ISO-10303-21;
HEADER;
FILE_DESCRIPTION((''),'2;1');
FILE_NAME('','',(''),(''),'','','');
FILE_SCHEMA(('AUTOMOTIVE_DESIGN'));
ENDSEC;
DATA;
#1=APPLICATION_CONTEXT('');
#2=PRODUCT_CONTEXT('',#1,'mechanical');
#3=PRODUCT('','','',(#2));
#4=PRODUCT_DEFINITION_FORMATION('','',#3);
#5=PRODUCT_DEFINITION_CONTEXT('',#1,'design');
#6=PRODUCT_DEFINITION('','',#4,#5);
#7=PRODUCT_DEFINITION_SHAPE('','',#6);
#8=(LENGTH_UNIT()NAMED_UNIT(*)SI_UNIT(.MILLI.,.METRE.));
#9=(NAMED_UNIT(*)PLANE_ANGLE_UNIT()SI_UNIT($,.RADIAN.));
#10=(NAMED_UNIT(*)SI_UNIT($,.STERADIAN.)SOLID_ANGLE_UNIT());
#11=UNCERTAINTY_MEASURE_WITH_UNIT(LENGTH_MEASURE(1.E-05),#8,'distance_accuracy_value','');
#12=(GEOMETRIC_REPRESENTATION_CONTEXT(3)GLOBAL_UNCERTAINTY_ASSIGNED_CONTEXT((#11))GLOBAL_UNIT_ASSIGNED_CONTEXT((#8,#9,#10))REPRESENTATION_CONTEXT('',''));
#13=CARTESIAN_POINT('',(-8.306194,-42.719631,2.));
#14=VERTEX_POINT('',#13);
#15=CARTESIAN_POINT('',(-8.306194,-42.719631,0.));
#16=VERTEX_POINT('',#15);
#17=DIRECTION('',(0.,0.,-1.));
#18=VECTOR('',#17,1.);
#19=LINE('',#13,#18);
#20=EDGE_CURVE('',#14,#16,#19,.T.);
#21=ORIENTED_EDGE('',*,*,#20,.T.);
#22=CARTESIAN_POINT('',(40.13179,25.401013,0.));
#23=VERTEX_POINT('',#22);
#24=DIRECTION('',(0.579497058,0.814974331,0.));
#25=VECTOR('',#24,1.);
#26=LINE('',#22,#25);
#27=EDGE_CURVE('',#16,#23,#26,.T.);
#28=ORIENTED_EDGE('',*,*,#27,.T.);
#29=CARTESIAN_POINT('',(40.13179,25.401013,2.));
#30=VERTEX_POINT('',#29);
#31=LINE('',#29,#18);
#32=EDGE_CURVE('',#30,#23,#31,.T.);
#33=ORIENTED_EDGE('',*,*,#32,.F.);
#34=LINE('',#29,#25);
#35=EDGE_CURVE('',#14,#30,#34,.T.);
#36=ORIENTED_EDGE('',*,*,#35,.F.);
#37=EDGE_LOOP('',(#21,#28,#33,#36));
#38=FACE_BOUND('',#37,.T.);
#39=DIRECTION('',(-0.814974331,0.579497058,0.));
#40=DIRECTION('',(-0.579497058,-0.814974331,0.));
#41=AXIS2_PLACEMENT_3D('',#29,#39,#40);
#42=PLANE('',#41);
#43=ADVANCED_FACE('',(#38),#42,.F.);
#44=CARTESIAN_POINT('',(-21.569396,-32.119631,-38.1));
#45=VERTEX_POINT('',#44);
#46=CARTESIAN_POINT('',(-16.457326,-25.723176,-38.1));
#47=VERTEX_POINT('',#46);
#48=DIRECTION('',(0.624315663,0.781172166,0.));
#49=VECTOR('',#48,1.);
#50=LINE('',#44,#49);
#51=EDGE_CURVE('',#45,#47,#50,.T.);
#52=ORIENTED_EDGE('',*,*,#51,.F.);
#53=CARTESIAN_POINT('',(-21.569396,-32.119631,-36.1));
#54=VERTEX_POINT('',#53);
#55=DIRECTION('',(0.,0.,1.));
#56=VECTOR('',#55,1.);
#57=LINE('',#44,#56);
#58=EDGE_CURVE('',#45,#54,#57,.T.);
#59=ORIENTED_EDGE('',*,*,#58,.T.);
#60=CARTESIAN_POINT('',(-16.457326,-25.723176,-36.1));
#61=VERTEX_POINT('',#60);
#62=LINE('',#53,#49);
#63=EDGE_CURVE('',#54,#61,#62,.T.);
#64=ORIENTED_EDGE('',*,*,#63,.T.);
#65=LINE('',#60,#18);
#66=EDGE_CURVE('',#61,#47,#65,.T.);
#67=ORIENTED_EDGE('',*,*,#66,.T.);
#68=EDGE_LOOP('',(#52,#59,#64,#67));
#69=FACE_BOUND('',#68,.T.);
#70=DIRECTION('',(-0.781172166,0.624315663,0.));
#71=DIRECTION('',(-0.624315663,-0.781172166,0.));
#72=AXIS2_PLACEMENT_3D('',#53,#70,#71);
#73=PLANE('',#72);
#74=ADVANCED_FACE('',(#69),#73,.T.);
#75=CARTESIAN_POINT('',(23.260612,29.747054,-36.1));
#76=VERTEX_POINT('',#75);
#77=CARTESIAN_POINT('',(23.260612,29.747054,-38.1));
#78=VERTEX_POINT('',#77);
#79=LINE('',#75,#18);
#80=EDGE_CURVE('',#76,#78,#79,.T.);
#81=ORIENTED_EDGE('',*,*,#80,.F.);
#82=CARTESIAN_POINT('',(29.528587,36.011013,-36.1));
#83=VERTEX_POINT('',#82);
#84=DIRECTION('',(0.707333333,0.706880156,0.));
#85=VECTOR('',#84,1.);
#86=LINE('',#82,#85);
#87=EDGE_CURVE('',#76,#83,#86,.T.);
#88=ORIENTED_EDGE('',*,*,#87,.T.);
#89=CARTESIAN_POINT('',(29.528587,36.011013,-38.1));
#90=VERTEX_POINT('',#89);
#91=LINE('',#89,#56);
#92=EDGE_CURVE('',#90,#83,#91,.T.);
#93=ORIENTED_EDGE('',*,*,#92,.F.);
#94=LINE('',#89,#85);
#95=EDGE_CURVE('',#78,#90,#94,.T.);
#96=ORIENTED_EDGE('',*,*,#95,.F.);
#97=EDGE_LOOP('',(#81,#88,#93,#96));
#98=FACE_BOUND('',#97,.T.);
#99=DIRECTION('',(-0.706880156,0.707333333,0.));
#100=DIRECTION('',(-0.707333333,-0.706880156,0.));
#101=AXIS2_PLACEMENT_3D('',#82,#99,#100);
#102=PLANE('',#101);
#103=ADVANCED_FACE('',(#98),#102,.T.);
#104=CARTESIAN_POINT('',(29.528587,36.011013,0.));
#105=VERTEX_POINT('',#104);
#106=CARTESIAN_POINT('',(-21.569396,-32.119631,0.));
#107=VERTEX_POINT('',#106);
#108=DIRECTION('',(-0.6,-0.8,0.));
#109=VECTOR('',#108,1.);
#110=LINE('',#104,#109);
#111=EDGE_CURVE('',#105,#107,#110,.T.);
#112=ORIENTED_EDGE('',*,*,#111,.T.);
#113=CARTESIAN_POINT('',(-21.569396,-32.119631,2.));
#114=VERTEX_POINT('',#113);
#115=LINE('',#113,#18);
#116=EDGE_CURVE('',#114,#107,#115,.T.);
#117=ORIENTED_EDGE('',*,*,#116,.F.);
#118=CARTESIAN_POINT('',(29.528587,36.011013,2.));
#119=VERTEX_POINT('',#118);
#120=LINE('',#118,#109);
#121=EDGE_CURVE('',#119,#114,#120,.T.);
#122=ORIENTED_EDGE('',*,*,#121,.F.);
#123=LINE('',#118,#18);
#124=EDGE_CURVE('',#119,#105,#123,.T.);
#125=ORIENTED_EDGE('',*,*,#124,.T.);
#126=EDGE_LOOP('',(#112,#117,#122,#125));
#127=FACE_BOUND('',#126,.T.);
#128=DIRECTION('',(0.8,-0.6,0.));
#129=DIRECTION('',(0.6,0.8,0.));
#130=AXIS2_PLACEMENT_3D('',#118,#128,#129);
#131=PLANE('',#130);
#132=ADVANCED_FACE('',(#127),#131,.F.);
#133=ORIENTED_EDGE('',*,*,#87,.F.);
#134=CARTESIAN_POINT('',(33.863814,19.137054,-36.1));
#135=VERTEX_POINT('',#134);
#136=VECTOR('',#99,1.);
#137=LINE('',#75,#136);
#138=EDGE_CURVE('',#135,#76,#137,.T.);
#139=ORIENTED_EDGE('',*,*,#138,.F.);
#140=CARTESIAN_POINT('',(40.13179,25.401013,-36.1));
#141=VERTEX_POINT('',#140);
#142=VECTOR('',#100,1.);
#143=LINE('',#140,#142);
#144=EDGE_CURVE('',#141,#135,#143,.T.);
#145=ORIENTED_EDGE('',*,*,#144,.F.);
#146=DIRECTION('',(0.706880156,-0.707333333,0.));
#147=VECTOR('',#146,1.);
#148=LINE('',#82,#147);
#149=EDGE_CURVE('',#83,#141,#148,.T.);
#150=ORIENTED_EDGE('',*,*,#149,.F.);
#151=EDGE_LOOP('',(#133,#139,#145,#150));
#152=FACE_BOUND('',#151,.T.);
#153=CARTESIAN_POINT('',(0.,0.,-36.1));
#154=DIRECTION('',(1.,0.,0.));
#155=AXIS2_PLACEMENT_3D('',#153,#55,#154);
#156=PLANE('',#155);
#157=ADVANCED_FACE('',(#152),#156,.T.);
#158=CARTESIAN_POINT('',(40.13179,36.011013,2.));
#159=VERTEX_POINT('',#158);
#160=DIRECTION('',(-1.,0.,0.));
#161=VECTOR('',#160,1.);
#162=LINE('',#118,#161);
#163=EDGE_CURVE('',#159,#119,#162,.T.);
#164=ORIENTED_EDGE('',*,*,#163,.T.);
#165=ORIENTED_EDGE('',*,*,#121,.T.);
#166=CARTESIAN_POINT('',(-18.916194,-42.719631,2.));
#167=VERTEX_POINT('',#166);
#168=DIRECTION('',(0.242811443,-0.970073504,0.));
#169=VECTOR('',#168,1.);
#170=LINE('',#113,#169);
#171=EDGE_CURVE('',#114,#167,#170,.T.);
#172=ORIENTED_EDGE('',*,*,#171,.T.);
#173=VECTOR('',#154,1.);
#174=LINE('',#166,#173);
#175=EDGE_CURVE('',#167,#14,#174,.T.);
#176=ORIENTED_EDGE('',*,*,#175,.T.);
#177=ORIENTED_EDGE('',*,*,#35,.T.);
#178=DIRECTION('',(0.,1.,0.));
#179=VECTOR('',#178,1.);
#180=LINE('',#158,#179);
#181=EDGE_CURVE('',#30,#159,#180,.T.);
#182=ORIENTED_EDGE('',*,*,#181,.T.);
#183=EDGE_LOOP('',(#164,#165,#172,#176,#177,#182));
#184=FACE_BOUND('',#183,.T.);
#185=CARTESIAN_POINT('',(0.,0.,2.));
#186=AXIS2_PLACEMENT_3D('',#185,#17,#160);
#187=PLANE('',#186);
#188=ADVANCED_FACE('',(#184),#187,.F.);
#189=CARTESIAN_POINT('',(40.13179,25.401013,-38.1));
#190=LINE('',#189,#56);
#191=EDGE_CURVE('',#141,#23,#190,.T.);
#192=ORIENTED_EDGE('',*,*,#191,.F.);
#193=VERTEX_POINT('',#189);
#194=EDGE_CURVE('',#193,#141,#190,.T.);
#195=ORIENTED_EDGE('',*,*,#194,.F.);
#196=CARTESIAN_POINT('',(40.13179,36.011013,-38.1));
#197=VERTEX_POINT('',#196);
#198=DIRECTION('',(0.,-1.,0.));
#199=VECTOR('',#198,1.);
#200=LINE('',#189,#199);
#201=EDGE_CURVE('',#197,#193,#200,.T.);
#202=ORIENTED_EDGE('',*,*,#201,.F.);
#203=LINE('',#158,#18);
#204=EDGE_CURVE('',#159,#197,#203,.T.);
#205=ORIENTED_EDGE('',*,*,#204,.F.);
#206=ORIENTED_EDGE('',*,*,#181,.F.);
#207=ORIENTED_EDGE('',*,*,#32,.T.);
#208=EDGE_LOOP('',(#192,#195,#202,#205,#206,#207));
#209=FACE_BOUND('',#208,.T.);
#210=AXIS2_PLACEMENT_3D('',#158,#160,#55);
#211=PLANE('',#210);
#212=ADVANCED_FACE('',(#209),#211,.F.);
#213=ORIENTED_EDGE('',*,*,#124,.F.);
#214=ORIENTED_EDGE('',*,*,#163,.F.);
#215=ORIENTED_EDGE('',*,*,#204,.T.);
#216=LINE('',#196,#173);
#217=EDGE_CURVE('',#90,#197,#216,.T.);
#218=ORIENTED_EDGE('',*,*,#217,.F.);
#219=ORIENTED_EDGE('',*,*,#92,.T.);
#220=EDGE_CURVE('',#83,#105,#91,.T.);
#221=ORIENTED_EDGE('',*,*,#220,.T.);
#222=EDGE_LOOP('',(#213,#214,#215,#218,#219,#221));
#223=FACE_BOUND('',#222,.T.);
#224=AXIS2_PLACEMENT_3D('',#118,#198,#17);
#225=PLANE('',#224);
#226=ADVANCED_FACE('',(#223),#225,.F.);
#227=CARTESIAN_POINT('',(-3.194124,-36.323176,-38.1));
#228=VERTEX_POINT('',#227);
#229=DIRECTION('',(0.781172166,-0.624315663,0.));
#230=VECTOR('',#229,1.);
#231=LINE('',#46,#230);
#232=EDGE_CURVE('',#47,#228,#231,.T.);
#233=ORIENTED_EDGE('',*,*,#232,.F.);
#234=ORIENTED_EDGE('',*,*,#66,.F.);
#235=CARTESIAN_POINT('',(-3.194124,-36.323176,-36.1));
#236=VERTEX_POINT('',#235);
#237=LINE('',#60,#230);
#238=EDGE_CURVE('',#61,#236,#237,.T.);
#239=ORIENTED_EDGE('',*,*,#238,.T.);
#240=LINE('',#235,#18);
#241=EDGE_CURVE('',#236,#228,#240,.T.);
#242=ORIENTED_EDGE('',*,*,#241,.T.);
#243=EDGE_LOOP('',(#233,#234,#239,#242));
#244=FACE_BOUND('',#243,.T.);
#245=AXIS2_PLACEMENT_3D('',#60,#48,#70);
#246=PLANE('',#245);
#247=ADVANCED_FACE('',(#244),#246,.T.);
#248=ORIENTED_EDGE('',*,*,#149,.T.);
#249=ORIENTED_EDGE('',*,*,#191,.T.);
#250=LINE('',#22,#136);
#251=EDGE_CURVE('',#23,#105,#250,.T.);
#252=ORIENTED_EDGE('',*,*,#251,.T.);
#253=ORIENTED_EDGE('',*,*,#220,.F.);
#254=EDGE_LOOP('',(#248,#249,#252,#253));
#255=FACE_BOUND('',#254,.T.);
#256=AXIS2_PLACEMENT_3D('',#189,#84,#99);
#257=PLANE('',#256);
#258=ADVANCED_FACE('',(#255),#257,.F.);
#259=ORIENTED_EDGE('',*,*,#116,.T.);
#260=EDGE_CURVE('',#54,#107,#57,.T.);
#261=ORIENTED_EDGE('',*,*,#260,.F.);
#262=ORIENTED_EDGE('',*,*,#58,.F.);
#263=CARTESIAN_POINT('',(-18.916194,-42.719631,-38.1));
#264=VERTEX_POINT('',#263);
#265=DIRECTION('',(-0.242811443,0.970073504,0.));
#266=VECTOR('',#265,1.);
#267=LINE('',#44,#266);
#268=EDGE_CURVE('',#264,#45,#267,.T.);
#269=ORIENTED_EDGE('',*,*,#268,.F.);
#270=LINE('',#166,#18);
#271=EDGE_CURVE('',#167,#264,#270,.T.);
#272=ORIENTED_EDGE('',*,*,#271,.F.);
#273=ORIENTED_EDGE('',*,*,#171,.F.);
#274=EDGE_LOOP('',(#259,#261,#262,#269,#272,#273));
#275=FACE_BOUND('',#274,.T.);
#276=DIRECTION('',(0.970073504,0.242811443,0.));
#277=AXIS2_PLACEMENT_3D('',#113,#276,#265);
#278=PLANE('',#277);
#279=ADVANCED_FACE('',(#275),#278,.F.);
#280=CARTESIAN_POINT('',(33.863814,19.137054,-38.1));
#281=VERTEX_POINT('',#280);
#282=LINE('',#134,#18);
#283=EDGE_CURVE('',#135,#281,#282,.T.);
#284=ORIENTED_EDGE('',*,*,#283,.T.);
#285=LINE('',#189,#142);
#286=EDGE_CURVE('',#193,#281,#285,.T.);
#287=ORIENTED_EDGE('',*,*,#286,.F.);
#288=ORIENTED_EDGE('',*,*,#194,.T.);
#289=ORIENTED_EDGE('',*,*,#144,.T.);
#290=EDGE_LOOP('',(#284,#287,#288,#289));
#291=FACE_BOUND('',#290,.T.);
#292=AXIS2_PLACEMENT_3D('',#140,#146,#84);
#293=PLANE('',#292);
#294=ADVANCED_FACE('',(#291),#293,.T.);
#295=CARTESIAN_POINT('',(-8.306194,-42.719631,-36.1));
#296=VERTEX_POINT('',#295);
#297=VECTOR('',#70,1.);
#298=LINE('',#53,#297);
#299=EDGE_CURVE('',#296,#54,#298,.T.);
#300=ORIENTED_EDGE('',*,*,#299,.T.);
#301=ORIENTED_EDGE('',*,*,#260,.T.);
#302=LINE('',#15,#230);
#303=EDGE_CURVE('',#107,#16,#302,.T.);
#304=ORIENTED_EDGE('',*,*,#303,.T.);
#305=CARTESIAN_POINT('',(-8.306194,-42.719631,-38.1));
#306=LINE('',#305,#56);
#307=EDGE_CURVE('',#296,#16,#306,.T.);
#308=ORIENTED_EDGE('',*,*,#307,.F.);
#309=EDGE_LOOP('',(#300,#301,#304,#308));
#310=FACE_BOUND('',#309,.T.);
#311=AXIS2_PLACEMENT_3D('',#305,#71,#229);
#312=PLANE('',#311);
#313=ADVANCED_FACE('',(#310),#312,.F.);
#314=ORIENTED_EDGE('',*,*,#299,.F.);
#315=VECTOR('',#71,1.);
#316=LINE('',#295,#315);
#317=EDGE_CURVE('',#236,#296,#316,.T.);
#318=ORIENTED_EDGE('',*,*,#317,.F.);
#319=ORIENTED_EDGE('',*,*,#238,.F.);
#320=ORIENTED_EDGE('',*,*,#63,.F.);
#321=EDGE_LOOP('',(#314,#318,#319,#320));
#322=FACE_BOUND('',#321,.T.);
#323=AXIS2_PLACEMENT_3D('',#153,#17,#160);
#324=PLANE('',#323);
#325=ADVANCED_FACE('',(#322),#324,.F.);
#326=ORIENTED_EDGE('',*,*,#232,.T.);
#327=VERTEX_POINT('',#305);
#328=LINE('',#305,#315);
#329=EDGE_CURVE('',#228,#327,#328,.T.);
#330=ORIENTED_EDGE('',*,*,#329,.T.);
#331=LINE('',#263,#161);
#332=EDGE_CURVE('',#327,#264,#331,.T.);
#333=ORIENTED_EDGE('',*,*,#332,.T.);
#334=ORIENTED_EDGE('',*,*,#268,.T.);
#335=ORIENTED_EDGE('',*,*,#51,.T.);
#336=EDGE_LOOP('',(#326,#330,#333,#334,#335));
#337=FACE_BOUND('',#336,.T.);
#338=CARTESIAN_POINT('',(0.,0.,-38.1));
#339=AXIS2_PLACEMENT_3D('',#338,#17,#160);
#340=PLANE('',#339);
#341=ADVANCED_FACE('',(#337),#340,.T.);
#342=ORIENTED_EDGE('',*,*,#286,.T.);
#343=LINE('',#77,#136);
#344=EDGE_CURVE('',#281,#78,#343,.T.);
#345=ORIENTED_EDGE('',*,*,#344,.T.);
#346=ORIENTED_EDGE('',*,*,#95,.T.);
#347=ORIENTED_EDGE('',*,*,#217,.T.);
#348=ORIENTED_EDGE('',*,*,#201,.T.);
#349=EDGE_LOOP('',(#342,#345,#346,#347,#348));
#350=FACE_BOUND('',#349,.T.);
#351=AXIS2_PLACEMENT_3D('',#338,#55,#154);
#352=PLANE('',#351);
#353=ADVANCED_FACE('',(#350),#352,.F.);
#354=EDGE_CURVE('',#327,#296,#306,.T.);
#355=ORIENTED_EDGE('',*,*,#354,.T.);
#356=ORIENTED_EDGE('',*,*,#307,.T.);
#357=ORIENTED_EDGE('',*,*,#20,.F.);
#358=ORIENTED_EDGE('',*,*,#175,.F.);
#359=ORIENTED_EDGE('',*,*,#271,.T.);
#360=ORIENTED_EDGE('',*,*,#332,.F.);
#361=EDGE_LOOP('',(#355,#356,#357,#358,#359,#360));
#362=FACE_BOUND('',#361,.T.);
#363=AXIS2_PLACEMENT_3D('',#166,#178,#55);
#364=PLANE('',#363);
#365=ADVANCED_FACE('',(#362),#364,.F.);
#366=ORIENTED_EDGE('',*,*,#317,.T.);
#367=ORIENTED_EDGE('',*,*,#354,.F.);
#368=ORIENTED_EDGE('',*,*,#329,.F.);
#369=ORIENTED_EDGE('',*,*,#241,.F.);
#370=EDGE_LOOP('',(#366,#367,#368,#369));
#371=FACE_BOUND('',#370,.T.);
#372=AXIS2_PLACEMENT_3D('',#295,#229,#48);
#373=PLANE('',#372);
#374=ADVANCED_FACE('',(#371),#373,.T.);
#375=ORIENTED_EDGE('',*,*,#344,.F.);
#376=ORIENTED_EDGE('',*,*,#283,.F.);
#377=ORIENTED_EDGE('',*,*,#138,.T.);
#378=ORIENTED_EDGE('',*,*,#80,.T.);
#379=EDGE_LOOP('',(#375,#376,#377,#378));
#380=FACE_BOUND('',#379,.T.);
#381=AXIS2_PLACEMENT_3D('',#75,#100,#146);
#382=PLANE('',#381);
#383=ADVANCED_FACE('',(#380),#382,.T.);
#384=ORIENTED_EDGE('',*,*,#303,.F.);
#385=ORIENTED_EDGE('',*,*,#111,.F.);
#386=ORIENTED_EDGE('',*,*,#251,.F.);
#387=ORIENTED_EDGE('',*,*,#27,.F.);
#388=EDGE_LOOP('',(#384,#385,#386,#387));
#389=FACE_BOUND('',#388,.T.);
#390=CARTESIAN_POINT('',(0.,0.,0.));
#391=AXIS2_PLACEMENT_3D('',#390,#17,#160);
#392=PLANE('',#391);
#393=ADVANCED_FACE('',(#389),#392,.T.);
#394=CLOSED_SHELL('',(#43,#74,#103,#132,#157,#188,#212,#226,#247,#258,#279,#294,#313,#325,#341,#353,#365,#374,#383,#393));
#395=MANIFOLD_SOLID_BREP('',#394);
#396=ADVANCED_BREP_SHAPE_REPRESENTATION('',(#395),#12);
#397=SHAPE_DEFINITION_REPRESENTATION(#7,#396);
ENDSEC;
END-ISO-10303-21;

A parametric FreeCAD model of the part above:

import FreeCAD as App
import Part
import Sketcher
Q = App.Units.Quantity


def add_polygon(sketch, points):
    """Adds a closed chain of lines whose ends are joined by coincident constraints."""
    first, n = sketch.GeometryCount, len(points)
    for a, b in zip(points, points[1:] + points[:1]):
        sketch.addGeometry(Part.LineSegment(App.Vector(*a, 0), App.Vector(*b, 0)), False)
    for i in range(n):
        sketch.addConstraint(Sketcher.Constraint("Coincident", first + i, 2, first + (i + 1) % n, 1))

doc = App.newDocument("Part")
params = doc.addObject("Spreadsheet::Sheet", "Params")
for row, (alias, value) in enumerate([
    ("sketch1_width", "10.61 mm"),
    ("pad1_length", "2 mm"),
    ("sketch2_length", "15 mm"),
    ("sketch2_width", "10.61 mm"),
    ("pad2_length", "38.1 mm"),
    ("sketch3_length", "15 mm"),
    ("pad3_length", "2 mm"),
], start=1):
    params.set(f"A{row}", alias)
    params.set(f"B{row}", "=" + value)
    params.setAlias(f"B{row}", alias)

body = doc.addObject("PartDesign::Body", "Body")

# Sketch on XY plane
sketch1 = body.newObject("Sketcher::SketchObject", "Sketch")
sketch1.AttachmentSupport = (doc.getObject("XY_Plane"), [""])
sketch1.MapMode = "FlatFace"
add_polygon(sketch1, [(29.528587, 36.011013), (-21.569396, -32.119631), (-18.916194, -42.719631), (-8.306194, -42.719631), (40.13179, 25.401013), (40.13179, 36.011013)])  # lines 0-5
sketch1.addConstraint([
    Sketcher.Constraint("Horizontal", 2),
    Sketcher.Constraint("Vertical", 4),
    Sketcher.Constraint("Horizontal", 5),
    Sketcher.Constraint("Equal", 2, 4),
    Sketcher.Constraint("DistanceX", 2, 1, 2, 2, Q("10.61 mm")),
    Sketcher.Constraint("DistanceY", 1, 2, 0, 2, Q("10.6 mm")),
    Sketcher.Constraint("DistanceX", 5, 2, 5, 1, Q("10.603202 mm")),
    Sketcher.Constraint("DistanceY", 0, 2, -1, 1, Q("32.119631 mm")),
    Sketcher.Constraint("DistanceX", -1, 1, 3, 2, Q("40.13179 mm")),
    Sketcher.Constraint("DistanceX", 2, 2, 5, 2, Q("37.834781 mm")),
    Sketcher.Constraint("Distance", 0, Q("85.163305 mm")),
    Sketcher.Constraint("Distance", 1, Q("10.927007 mm")),
])
sketch1.setExpression("Constraints[10]", "Params.sketch1_width")
pad1 = body.newObject("PartDesign::Pad", "Pad")
pad1.Profile = sketch1
pad1.setExpression("Length", "Params.pad1_length")

# Sketch on XY plane
sketch2 = body.newObject("Sketcher::SketchObject", "Sketch001")
sketch2.AttachmentSupport = (doc.getObject("XY_Plane"), [""])
sketch2.MapMode = "FlatFace"
add_polygon(sketch2, [(40.13179, 25.401013), (29.528587, 36.011013), (40.13179, 36.011013)])  # lines 0-2
add_polygon(sketch2, [(-21.569396, -32.119631), (-8.306194, -42.719631), (-18.916194, -42.719631)])  # lines 3-5
sketch2.addConstraint([
    Sketcher.Constraint("Horizontal", 1),
    Sketcher.Constraint("Vertical", 2),
    Sketcher.Constraint("Horizontal", 4),
    Sketcher.Constraint("Equal", 4, 2),
    Sketcher.Constraint("Distance", 0, Q("15 mm")),
    Sketcher.Constraint("DistanceX", 4, 2, 4, 1, Q("10.61 mm")),
    Sketcher.Constraint("DistanceY", 4, 2, 5, 2, Q("10.6 mm")),
    Sketcher.Constraint("Distance", 3, Q("16.978591 mm")),
    Sketcher.Constraint("DistanceX", -1, 1, 1, 2, Q("40.13179 mm")),
    Sketcher.Constraint("DistanceY", 3, 2, -1, 1, Q("42.719631 mm")),
    Sketcher.Constraint("DistanceX", 3, 2, 0, 2, Q("37.834781 mm")),
    Sketcher.Constraint("DistanceY", -1, 1, 0, 2, Q("36.011013 mm")),
])
sketch2.setExpression("Constraints[10]", "Params.sketch2_length")
sketch2.setExpression("Constraints[11]", "Params.sketch2_width")
pad2 = body.newObject("PartDesign::Pad", "Pad001")
pad2.Profile = sketch2
pad2.setExpression("Length", "Params.pad2_length")
pad2.Reversed = True

# Sketch on XY plane
sketch3 = body.newObject("Sketcher::SketchObject", "Sketch002")
sketch3.AttachmentSupport = (doc.getObject("XY_Plane"), [""])
sketch3.MapMode = "FlatFace"
sketch3.AttachmentOffset = App.Placement(App.Vector(0, 0, -38.1), App.Rotation())
add_polygon(sketch3, [(-8.306194, -42.719631), (-21.569396, -32.119631), (-16.457326, -25.723176), (-3.194124, -36.323176)])  # lines 0-3
add_polygon(sketch3, [(29.528587, 36.011013), (40.13179, 25.401013), (33.863814, 19.137054), (23.260612, 29.747054)])  # lines 4-7
sketch3.addConstraint([
    Sketcher.Constraint("Perpendicular", 0, 1),
    Sketcher.Constraint("Perpendicular", 1, 2),
    Sketcher.Constraint("Perpendicular", 2, 3),
    Sketcher.Constraint("Perpendicular", 4, 5),
    Sketcher.Constraint("Perpendicular", 5, 6),
    Sketcher.Constraint("Perpendicular", 6, 7),
    Sketcher.Constraint("Distance", 4, Q("15 mm")),
    Sketcher.Constraint("DistanceY", 2, 2, 1, 2, Q("10.6 mm")),
    Sketcher.Constraint("DistanceY", 5, 2, 6, 2, Q("10.61 mm")),
    Sketcher.Constraint("Distance", 0, Q("16.978591 mm")),
    Sketcher.Constraint("DistanceY", 0, 2, -1, 1, Q("32.119631 mm")),
    Sketcher.Constraint("DistanceX", -1, 1, 4, 2, Q("40.13179 mm")),
    Sketcher.Constraint("DistanceX", -1, 1, 6, 2, Q("23.260612 mm")),
    Sketcher.Constraint("DistanceX", 0, 2, 1, 2, Q("5.11207 mm")),
    Sketcher.Constraint("DistanceY", 2, 2, 4, 2, Q("61.72419 mm")),
    Sketcher.Constraint("DistanceX", 1, 2, 5, 2, Q("50.32114 mm")),
])
sketch3.setExpression("Constraints[14]", "Params.sketch3_length")
pad3 = body.newObject("PartDesign::Pad", "Pad002")
pad3.Profile = sketch3
pad3.setExpression("Length", "Params.pad3_length")

doc.recompute()
